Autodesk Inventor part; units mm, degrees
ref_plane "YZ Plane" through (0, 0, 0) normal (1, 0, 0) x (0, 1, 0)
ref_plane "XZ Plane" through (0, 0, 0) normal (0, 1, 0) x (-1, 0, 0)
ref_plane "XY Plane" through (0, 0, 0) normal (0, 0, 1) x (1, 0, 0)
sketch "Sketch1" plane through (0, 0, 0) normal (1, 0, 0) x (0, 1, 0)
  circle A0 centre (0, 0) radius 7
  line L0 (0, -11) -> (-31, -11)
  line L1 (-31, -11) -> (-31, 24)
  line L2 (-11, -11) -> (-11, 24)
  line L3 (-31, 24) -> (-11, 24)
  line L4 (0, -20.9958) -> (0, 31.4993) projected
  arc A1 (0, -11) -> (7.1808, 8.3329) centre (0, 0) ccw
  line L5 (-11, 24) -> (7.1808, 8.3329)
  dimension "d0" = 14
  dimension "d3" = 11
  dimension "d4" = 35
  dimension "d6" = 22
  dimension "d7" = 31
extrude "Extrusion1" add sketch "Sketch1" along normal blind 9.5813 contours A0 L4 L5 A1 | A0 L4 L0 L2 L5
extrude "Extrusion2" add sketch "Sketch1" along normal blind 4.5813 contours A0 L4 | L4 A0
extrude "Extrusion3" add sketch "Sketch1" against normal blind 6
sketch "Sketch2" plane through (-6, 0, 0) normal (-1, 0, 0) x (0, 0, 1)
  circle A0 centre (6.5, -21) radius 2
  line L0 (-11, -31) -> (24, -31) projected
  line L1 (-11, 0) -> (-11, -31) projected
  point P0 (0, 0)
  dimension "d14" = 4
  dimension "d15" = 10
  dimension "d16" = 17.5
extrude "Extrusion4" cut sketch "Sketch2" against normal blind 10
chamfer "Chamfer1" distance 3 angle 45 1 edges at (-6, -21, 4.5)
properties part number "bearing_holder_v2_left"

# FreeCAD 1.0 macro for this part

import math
import FreeCAD as App
import Part
import Sketcher
Q = App.Units.Quantity


def edges_at(feature, points):
    """Names of the edges that pass closest to the given points."""
    edges = feature.Shape.Edges
    near = lambda p: min(range(len(edges)), key=lambda i: edges[i].distToShape(Part.Vertex(*p))[0])
    return sorted({f"Edge{near(p) + 1}" for p in points})

doc = App.newDocument("Part")
params = doc.addObject("Spreadsheet::Sheet", "Params")
for row, (alias, value) in enumerate([
    ("sketch1_diameter", "14 mm"),
    ("sketch1_radius", "11 mm"),
    ("sketch1_width", "11 mm"),
    ("sketch1_height", "35 mm"),
    ("pad1_length", "9.5813 mm"),
    ("sketch2_diameter", "14 mm"),
    ("pad2_length", "4.5813 mm"),
    ("sketch3_radius", "11 mm"),
    ("sketch3_width", "31 mm"),
    ("sketch3_height", "35 mm"),
    ("pad3_length", "6 mm"),
    ("sketch4_diameter", "4 mm"),
    ("pocket1_length", "10 mm"),
    ("chamfer_size", "3 mm"),
], start=1):
    params.set(f"A{row}", alias)
    params.set(f"B{row}", "=" + value)
    params.setAlias(f"B{row}", alias)

body = doc.addObject("PartDesign::Body", "Body")

sketch1 = body.newObject("Sketcher::SketchObject", "Sketch")
sketch1.AttachmentSupport = (doc.getObject("YZ_Plane"), [""])
sketch1.MapMode = "FlatFace"
sketch1.addGeometry(Part.LineSegment(App.Vector(7, 8, 0), App.Vector(-11, 24, 0)), False)
sketch1.addGeometry(Part.LineSegment(App.Vector(-11, 24, 0), App.Vector(-11, -11, 0)), False)
sketch1.addGeometry(Part.LineSegment(App.Vector(-11, -11, 0), App.Vector(0, -11, 0)), False)
sketch1.addGeometry(Part.ArcOfCircle(Part.Circle(App.Vector(0, 0, 0), App.Vector(0, 0, 1), 11), math.radians(-90), math.radians(49)), False)
sketch1.addGeometry(Part.Circle(App.Vector(0, 0, 0), App.Vector(0, 0, 1), 7), False)
sketch1.addConstraint(Sketcher.Constraint("Coincident", 0, 2, 1, 1))
sketch1.addConstraint(Sketcher.Constraint("Coincident", 1, 2, 2, 1))
sketch1.addConstraint(Sketcher.Constraint("Tangent", 2, 2, 3, 1))
sketch1.addConstraint(Sketcher.Constraint("Tangent", 3, 2, 0, 1))
sketch1.addConstraint(Sketcher.Constraint("Vertical", 1))
sketch1.addConstraint(Sketcher.Constraint("Horizontal", 2))
sketch1.addConstraint(Sketcher.Constraint("Coincident", 3, 3, -1, 1))
sketch1.addConstraint(Sketcher.Constraint("Coincident", 4, 3, -1, 1))
sketch1.addConstraint(Sketcher.Constraint("Diameter", 4, Q("14 mm")))
sketch1.addConstraint(Sketcher.Constraint("Radius", 3, Q("11 mm")))
sketch1.addConstraint(Sketcher.Constraint("DistanceX", 2, 1, 2, 2, Q("11 mm")))
sketch1.addConstraint(Sketcher.Constraint("DistanceY", 1, 2, 1, 1, Q("35 mm")))
sketch1.setExpression("Constraints[8]", "Params.sketch1_diameter")
sketch1.setExpression("Constraints[9]", "Params.sketch1_radius")
sketch1.setExpression("Constraints[10]", "Params.sketch1_width")
sketch1.setExpression("Constraints[11]", "Params.sketch1_height")
pad1 = body.newObject("PartDesign::Pad", "Pad")
pad1.Profile = sketch1
pad1.setExpression("Length", "Params.pad1_length")

sketch2 = body.newObject("Sketcher::SketchObject", "Sketch001")
sketch2.AttachmentSupport = (doc.getObject("YZ_Plane"), [""])
sketch2.MapMode = "FlatFace"
sketch2.addGeometry(Part.Circle(App.Vector(0, 0, 0), App.Vector(0, 0, 1), 7), False)
sketch2.addConstraint(Sketcher.Constraint("Coincident", 0, 3, -1, 1))
sketch2.addConstraint(Sketcher.Constraint("Diameter", 0, Q("14 mm")))
sketch2.setExpression("Constraints[1]", "Params.sketch2_diameter")
pad2 = body.newObject("PartDesign::Pad", "Pad001")
pad2.Profile = sketch2
pad2.setExpression("Length", "Params.pad2_length")

sketch3 = body.newObject("Sketcher::SketchObject", "Sketch002")
sketch3.AttachmentSupport = (doc.getObject("YZ_Plane"), [""])
sketch3.MapMode = "FlatFace"
sketch3.addGeometry(Part.LineSegment(App.Vector(7, 8, 0), App.Vector(-11, 24, 0)), False)
sketch3.addGeometry(Part.LineSegment(App.Vector(-11, 24, 0), App.Vector(-31, 24, 0)), False)
sketch3.addGeometry(Part.LineSegment(App.Vector(-31, 24, 0), App.Vector(-31, -11, 0)), False)
sketch3.addGeometry(Part.LineSegment(App.Vector(-31, -11, 0), App.Vector(0, -11, 0)), False)
sketch3.addGeometry(Part.ArcOfCircle(Part.Circle(App.Vector(0, 0, 0), App.Vector(0, 0, 1), 11), math.radians(-90), math.radians(49)), False)
sketch3.addConstraint(Sketcher.Constraint("Coincident", 0, 2, 1, 1))
sketch3.addConstraint(Sketcher.Constraint("Coincident", 1, 2, 2, 1))
sketch3.addConstraint(Sketcher.Constraint("Coincident", 2, 2, 3, 1))
sketch3.addConstraint(Sketcher.Constraint("Tangent", 3, 2, 4, 1))
sketch3.addConstraint(Sketcher.Constraint("Tangent", 4, 2, 0, 1))
sketch3.addConstraint(Sketcher.Constraint("Horizontal", 1))
sketch3.addConstraint(Sketcher.Constraint("Vertical", 2))
sketch3.addConstraint(Sketcher.Constraint("Horizontal", 3))
sketch3.addConstraint(Sketcher.Constraint("Coincident", 4, 3, -1, 1))
sketch3.addConstraint(Sketcher.Constraint("Radius", 4, Q("11 mm")))
sketch3.addConstraint(Sketcher.Constraint("DistanceX", 3, 1, 3, 2, Q("31 mm")))
sketch3.addConstraint(Sketcher.Constraint("DistanceY", 2, 2, 2, 1, Q("35 mm")))
sketch3.addConstraint(Sketcher.Constraint("DistanceX", 0, 2, -1, 1, Q("11 mm")))
sketch3.setExpression("Constraints[9]", "Params.sketch3_radius")
sketch3.setExpression("Constraints[10]", "Params.sketch3_width")
sketch3.setExpression("Constraints[11]", "Params.sketch3_height")
pad3 = body.newObject("PartDesign::Pad", "Pad002")
pad3.Profile = sketch3
pad3.setExpression("Length", "Params.pad3_length")
pad3.Reversed = True

sketch4 = body.newObject("Sketcher::SketchObject", "Sketch003")
sketch4.AttachmentSupport = (doc.getObject("YZ_Plane"), [""])
sketch4.MapMode = "FlatFace"
sketch4.AttachmentOffset = App.Placement(App.Vector(0, 0, -6), App.Rotation())
sketch4.addGeometry(Part.Circle(App.Vector(-21, 6.5, 0), App.Vector(0, 0, 1), 2), False)
sketch4.addConstraint(Sketcher.Constraint("Diameter", 0, Q("4 mm")))
sketch4.addConstraint(Sketcher.Constraint("DistanceX", 0, 3, -1, 1, Q("21 mm")))
sketch4.addConstraint(Sketcher.Constraint("DistanceY", -1, 1, 0, 3, Q("6.5 mm")))
sketch4.setExpression("Constraints[0]", "Params.sketch4_diameter")
pocket1 = body.newObject("PartDesign::Pocket", "Pocket")
pocket1.Profile = sketch4
pocket1.setExpression("Length", "Params.pocket1_length")
pocket1.Reversed = True
doc.recompute()

chamfer = body.newObject("PartDesign::Chamfer", "Chamfer")
chamfer.Base = (pocket1, edges_at(pocket1, [(-6, -21, 4.5)]))
chamfer.setExpression("Size", "Params.chamfer_size")

doc.recompute()
